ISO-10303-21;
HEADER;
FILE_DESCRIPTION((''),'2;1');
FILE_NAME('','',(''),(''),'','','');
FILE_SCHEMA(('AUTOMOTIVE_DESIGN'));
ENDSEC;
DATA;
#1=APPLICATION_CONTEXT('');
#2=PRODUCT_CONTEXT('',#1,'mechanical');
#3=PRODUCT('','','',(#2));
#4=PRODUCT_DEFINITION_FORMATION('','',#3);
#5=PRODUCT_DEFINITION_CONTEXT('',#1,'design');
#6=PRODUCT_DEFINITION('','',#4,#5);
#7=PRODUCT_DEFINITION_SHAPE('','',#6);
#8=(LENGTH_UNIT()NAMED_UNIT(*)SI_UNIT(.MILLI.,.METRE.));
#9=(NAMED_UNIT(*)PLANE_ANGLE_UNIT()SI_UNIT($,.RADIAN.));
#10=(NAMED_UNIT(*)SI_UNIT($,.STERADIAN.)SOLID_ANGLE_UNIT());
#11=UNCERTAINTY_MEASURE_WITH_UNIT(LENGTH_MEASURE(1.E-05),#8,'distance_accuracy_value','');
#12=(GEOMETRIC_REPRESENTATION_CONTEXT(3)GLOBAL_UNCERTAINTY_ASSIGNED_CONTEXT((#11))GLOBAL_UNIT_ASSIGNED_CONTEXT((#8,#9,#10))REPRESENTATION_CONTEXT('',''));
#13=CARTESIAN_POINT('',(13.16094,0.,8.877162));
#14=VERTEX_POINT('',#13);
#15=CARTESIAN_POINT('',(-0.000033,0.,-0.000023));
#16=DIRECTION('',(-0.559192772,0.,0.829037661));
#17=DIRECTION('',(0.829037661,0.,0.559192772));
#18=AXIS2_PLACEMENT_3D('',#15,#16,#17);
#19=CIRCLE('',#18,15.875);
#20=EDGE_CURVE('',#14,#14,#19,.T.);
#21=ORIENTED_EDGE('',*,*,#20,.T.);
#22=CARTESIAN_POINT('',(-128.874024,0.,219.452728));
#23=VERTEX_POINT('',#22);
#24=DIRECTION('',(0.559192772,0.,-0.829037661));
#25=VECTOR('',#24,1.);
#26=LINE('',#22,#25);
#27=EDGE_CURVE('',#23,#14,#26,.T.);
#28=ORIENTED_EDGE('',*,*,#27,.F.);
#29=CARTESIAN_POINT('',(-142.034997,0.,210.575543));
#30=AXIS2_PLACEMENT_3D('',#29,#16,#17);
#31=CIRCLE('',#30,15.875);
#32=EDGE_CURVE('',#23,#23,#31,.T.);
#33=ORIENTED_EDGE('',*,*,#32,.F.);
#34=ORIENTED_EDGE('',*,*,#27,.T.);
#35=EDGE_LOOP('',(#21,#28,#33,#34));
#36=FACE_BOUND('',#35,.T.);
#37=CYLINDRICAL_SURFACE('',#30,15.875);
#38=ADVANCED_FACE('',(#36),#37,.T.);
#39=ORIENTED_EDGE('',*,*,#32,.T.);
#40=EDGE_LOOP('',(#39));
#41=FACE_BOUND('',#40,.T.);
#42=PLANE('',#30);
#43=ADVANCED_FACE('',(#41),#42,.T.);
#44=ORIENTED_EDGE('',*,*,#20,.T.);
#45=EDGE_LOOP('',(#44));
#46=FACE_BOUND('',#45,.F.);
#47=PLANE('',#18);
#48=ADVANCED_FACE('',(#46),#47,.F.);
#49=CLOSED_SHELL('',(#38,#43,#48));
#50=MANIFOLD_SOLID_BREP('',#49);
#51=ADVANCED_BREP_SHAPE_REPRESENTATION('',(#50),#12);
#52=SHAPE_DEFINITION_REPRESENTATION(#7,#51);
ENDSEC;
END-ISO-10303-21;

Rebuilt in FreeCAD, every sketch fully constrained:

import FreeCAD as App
import Part
import Sketcher
from FreeCAD import Vector
Q = App.Units.Quantity

doc = App.newDocument("Part")
body = doc.addObject("PartDesign::Body", "Body")

# Sketch on an angled plane
sketch1 = doc.addObject("Sketcher::SketchObject", "Sketch")
body.addObject(sketch1)
sketch1.Placement = App.Placement(Vector(-142.034997, 0, 210.575543), App.Rotation(Vector(0.829037661, 0, 0.559192772), Vector(0, 1, 0), Vector(-0.559192772, 0, 0.829037661), "ZXY"))
sketch1.addGeometry(Part.Circle(Vector(0, 0, 0), Vector(0, 0, 1), 16), False)
sketch1.addConstraint([
    Sketcher.Constraint("Coincident", 0, 3, -1, 1),
    Sketcher.Constraint("Diameter", 0, Q("1.25 in")),
])
pad1 = doc.addObject("PartDesign::Pad", "Pad")
body.addObject(pad1)
pad1.Profile = sketch1
pad1.Length = Q("10 in")
pad1.Reversed = True

doc.recompute()
